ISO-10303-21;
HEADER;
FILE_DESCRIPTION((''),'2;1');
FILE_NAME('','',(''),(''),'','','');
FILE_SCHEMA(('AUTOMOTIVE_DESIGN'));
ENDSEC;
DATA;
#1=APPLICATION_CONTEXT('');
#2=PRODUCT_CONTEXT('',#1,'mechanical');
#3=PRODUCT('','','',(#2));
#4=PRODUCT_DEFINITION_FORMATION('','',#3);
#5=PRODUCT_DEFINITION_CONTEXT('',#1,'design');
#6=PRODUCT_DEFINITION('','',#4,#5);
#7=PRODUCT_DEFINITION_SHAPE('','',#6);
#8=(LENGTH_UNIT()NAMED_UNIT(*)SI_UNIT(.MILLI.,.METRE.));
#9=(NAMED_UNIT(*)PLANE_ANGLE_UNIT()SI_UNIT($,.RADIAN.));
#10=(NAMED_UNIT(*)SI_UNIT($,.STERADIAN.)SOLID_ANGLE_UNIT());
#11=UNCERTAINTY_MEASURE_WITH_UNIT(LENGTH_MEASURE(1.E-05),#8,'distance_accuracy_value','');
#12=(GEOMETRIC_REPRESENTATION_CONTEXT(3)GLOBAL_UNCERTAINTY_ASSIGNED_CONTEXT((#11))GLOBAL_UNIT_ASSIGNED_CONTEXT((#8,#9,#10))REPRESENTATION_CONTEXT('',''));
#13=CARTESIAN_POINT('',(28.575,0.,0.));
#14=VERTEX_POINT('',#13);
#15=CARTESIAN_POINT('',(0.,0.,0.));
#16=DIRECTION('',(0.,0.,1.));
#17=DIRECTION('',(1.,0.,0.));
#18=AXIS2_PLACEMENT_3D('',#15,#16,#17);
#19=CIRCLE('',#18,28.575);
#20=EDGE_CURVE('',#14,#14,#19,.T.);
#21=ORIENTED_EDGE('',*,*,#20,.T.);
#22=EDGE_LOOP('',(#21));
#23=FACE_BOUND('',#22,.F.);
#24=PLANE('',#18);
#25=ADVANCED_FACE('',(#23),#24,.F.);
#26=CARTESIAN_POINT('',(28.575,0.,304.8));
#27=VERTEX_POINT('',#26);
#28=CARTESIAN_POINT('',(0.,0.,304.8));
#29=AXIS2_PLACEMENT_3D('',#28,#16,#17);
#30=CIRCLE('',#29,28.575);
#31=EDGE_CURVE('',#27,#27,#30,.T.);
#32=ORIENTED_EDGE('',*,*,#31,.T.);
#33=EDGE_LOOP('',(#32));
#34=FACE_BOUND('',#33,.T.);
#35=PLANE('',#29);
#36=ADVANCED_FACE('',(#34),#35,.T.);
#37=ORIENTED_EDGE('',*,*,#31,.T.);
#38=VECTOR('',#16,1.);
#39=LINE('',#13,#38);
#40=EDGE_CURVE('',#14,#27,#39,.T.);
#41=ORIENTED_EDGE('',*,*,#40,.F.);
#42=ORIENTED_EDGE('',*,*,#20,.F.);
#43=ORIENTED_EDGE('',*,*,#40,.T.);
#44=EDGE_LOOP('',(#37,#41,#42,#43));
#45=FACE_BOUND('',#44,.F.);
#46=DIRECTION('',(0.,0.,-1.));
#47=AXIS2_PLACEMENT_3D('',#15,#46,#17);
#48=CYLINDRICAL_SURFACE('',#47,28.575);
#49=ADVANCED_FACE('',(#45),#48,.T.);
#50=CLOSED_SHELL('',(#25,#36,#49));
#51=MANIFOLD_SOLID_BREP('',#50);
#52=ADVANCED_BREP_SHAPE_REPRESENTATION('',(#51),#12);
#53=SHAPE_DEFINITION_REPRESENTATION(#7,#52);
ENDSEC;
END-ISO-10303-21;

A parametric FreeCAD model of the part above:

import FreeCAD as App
import Part
import Sketcher
Q = App.Units.Quantity

doc = App.newDocument("Part")
body = doc.addObject("PartDesign::Body", "Body")

# Sketch on XY plane
sketch1 = body.newObject("Sketcher::SketchObject", "Sketch")
sketch1.AttachmentSupport = (doc.getObject("XY_Plane"), [""])
sketch1.MapMode = "FlatFace"
sketch1.addGeometry(Part.Circle(App.Vector(0, 0, 0), App.Vector(0, 0, 1), 28.575), False)
sketch1.addConstraint(Sketcher.Constraint("Coincident", 0, 3, -1, 1))
sketch1.addConstraint(Sketcher.Constraint("Diameter", 0, Q("2.25 in")))
pad1 = body.newObject("PartDesign::Pad", "Pad")
pad1.Profile = sketch1
pad1.Length = Q("12 in")

doc.recompute()
